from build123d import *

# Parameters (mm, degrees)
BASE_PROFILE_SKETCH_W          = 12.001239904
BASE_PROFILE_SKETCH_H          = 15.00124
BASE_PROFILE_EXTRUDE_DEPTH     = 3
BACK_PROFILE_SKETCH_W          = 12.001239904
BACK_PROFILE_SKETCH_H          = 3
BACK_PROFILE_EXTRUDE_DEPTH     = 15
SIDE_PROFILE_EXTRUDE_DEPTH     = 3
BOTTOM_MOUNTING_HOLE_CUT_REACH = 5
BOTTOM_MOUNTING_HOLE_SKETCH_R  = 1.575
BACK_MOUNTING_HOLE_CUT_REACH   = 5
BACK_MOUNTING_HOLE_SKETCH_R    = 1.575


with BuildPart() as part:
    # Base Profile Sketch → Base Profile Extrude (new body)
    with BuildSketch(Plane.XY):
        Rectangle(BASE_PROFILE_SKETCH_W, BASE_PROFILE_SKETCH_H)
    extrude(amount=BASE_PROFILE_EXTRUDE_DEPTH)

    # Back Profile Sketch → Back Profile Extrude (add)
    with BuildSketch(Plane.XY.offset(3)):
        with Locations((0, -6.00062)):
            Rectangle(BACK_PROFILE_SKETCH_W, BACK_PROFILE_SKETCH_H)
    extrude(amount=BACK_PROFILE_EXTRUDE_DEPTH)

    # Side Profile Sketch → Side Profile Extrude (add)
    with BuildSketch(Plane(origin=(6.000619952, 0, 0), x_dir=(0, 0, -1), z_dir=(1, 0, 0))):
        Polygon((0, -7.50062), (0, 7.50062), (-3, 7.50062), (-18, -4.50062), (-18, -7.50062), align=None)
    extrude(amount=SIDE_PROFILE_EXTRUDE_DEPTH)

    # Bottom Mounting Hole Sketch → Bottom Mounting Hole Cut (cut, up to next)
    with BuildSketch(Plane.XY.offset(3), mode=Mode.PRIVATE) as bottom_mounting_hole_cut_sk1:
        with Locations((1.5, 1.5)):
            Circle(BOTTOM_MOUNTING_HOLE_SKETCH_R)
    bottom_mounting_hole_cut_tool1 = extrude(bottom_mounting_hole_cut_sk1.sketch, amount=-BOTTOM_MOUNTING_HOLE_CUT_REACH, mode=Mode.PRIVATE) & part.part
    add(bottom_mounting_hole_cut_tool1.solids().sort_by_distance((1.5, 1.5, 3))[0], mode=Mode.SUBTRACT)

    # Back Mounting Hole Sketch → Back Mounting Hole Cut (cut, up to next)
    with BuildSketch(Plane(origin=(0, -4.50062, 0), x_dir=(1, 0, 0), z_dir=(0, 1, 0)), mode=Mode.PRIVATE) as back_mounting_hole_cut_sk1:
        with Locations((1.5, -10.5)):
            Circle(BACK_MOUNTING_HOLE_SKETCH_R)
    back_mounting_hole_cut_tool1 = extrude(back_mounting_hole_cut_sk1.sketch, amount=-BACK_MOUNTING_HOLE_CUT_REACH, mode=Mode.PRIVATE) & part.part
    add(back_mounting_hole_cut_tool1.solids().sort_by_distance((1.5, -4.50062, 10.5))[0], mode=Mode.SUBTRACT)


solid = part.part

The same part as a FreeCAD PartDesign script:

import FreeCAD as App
import Part
import Sketcher
from FreeCAD import Vector

doc = App.newDocument("Part")
body = doc.addObject("PartDesign::Body", "Body")

# Sketch on XY plane
sketch1 = body.newObject("Sketcher::SketchObject", "Sketch")
sketch1.AttachmentSupport = (doc.getObject("XY_Plane"), [""])
sketch1.MapMode = "FlatFace"
sketch1.addGeometry([
    Part.LineSegment(Vector(-6.00062, 7.50062, 0), Vector(-6.00062, -7.50062, 0)),
    Part.LineSegment(Vector(-6.00062, -7.50062, 0), Vector(6.00062, -7.50062, 0)),
    Part.LineSegment(Vector(6.00062, -7.50062, 0), Vector(6.00062, 7.50062, 0)),
    Part.LineSegment(Vector(6.00062, 7.50062, 0), Vector(-6.00062, 7.50062, 0)),
], False)
sketch1.addConstraint([
    Sketcher.Constraint("Coincident", 0, 2, 1, 1),
    Sketcher.Constraint("Coincident", 1, 2, 2, 1),
    Sketcher.Constraint("Coincident", 2, 2, 3, 1),
    Sketcher.Constraint("Coincident", 3, 2, 0, 1),
    Sketcher.Constraint("Vertical", 0),
    Sketcher.Constraint("Horizontal", 1),
    Sketcher.Constraint("Vertical", 2),
    Sketcher.Constraint("Horizontal", 3),
    Sketcher.Constraint("Symmetric", 0, 2, 2, 2, -1, 1),
    Sketcher.Constraint("DistanceX", 1, 1, 1, 2, 12.00124),
    Sketcher.Constraint("DistanceY", 0, 2, 0, 1, 15.00124),
])
pad1 = body.newObject("PartDesign::Pad", "Pad")
pad1.Profile = sketch1
pad1.Length = 3

# Sketch on XY plane
sketch2 = body.newObject("Sketcher::SketchObject", "Sketch001")
sketch2.AttachmentSupport = (doc.getObject("XY_Plane"), [""])
sketch2.MapMode = "FlatFace"
sketch2.AttachmentOffset = App.Placement(Vector(0, 0, 3), App.Rotation())
sketch2.addGeometry([
    Part.LineSegment(Vector(-6.00062, -4.50062, 0), Vector(-6.00062, -7.50062, 0)),
    Part.LineSegment(Vector(-6.00062, -7.50062, 0), Vector(6.00062, -7.50062, 0)),
    Part.LineSegment(Vector(6.00062, -7.50062, 0), Vector(6.00062, -4.50062, 0)),
    Part.LineSegment(Vector(6.00062, -4.50062, 0), Vector(-6.00062, -4.50062, 0)),
], False)
sketch2.addConstraint([
    Sketcher.Constraint("Coincident", 0, 2, 1, 1),
    Sketcher.Constraint("Coincident", 1, 2, 2, 1),
    Sketcher.Constraint("Coincident", 2, 2, 3, 1),
    Sketcher.Constraint("Coincident", 3, 2, 0, 1),
    Sketcher.Constraint("Vertical", 0),
    Sketcher.Constraint("Horizontal", 1),
    Sketcher.Constraint("Vertical", 2),
    Sketcher.Constraint("Horizontal", 3),
    Sketcher.Constraint("DistanceY", 0, 2, 0, 1, 3.0),
    Sketcher.Constraint("DistanceX", 1, 1, 1, 2, 12.00124),
    Sketcher.Constraint("DistanceX", 0, 2, -1, 1, 6.00062),
    Sketcher.Constraint("DistanceY", 0, 2, -1, 1, 7.50062),
])
pad2 = body.newObject("PartDesign::Pad", "Pad001")
pad2.Profile = sketch2
pad2.Length = 15

# Sketch on YZ plane
sketch3 = body.newObject("Sketcher::SketchObject", "Sketch002")
sketch3.AttachmentSupport = (doc.getObject("YZ_Plane"), [""])
sketch3.MapMode = "FlatFace"
sketch3.AttachmentOffset = App.Placement(Vector(0, 0, 6.00062), App.Rotation())
sketch3.addGeometry([
    Part.LineSegment(Vector(-7.50062, 0, 0), Vector(7.50062, 0, 0)),  # 0
    Part.LineSegment(Vector(7.50062, 0, 0), Vector(7.50062, 3, 0)),  # 1
    Part.LineSegment(Vector(7.50062, 3, 0), Vector(-4.50062, 18, 0)),  # 2
    Part.LineSegment(Vector(-4.50062, 18, 0), Vector(-7.50062, 18, 0)),  # 3
    Part.LineSegment(Vector(-7.50062, 18, 0), Vector(-7.50062, 0, 0)),  # 4
], False)
sketch3.addConstraint([
    Sketcher.Constraint("Coincident", 0, 2, 1, 1),
    Sketcher.Constraint("Coincident", 1, 2, 2, 1),
    Sketcher.Constraint("Coincident", 2, 2, 3, 1),
    Sketcher.Constraint("Coincident", 3, 2, 4, 1),
    Sketcher.Constraint("Coincident", 4, 2, 0, 1),
    Sketcher.Constraint("Horizontal", 0),
    Sketcher.Constraint("Vertical", 1),
    Sketcher.Constraint("Horizontal", 3),
    Sketcher.Constraint("Vertical", 4),
    Sketcher.Constraint("Symmetric", 0, 2, 4, 2, -1, 1),
    Sketcher.Constraint("Equal", 3, 1),
    Sketcher.Constraint("DistanceX", 3, 2, 3, 1, 3.0),
    Sketcher.Constraint("DistanceY", 4, 2, 4, 1, 18.0),
    Sketcher.Constraint("DistanceX", 0, 1, 0, 2, 15.00124),
])
pad3 = body.newObject("PartDesign::Pad", "Pad002")
pad3.Profile = sketch3
pad3.Length = 3

# Sketch on XY plane
sketch4 = body.newObject("Sketcher::SketchObject", "Sketch003")
sketch4.AttachmentSupport = (doc.getObject("XY_Plane"), [""])
sketch4.MapMode = "FlatFace"
sketch4.AttachmentOffset = App.Placement(Vector(0, 0, 3), App.Rotation())
sketch4.addGeometry(Part.Circle(Vector(1.5, 1.5, 0), Vector(0, 0, 1), 1.575), False)
sketch4.addConstraint([
    Sketcher.Constraint("Diameter", 0, 3.15),
    Sketcher.Constraint("DistanceX", -1, 1, 0, 3, 1.5),
    Sketcher.Constraint("DistanceY", -1, 1, 0, 3, 1.5),
])
pocket1 = body.newObject("PartDesign::Pocket", "Pocket")
pocket1.Profile = sketch4
pocket1.Type = "UpToFirst"

# Sketch on XZ plane
sketch5 = body.newObject("Sketcher::SketchObject", "Sketch004")
sketch5.AttachmentSupport = (doc.getObject("XZ_Plane"), [""])
sketch5.MapMode = "FlatFace"
sketch5.AttachmentOffset = App.Placement(Vector(0, 0, 4.50062), App.Rotation())
sketch5.addGeometry(Part.Circle(Vector(1.5, 10.5, 0), Vector(0, 0, 1), 1.575), False)
sketch5.addConstraint([
    Sketcher.Constraint("Diameter", 0, 3.15),
    Sketcher.Constraint("DistanceX", -1, 1, 0, 3, 1.5),
    Sketcher.Constraint("DistanceY", -1, 1, 0, 3, 10.5),
])
pocket2 = body.newObject("PartDesign::Pocket", "Pocket001")
pocket2.Profile = sketch5
pocket2.Type = "UpToFirst"
pocket2.Reversed = True

doc.recompute()
